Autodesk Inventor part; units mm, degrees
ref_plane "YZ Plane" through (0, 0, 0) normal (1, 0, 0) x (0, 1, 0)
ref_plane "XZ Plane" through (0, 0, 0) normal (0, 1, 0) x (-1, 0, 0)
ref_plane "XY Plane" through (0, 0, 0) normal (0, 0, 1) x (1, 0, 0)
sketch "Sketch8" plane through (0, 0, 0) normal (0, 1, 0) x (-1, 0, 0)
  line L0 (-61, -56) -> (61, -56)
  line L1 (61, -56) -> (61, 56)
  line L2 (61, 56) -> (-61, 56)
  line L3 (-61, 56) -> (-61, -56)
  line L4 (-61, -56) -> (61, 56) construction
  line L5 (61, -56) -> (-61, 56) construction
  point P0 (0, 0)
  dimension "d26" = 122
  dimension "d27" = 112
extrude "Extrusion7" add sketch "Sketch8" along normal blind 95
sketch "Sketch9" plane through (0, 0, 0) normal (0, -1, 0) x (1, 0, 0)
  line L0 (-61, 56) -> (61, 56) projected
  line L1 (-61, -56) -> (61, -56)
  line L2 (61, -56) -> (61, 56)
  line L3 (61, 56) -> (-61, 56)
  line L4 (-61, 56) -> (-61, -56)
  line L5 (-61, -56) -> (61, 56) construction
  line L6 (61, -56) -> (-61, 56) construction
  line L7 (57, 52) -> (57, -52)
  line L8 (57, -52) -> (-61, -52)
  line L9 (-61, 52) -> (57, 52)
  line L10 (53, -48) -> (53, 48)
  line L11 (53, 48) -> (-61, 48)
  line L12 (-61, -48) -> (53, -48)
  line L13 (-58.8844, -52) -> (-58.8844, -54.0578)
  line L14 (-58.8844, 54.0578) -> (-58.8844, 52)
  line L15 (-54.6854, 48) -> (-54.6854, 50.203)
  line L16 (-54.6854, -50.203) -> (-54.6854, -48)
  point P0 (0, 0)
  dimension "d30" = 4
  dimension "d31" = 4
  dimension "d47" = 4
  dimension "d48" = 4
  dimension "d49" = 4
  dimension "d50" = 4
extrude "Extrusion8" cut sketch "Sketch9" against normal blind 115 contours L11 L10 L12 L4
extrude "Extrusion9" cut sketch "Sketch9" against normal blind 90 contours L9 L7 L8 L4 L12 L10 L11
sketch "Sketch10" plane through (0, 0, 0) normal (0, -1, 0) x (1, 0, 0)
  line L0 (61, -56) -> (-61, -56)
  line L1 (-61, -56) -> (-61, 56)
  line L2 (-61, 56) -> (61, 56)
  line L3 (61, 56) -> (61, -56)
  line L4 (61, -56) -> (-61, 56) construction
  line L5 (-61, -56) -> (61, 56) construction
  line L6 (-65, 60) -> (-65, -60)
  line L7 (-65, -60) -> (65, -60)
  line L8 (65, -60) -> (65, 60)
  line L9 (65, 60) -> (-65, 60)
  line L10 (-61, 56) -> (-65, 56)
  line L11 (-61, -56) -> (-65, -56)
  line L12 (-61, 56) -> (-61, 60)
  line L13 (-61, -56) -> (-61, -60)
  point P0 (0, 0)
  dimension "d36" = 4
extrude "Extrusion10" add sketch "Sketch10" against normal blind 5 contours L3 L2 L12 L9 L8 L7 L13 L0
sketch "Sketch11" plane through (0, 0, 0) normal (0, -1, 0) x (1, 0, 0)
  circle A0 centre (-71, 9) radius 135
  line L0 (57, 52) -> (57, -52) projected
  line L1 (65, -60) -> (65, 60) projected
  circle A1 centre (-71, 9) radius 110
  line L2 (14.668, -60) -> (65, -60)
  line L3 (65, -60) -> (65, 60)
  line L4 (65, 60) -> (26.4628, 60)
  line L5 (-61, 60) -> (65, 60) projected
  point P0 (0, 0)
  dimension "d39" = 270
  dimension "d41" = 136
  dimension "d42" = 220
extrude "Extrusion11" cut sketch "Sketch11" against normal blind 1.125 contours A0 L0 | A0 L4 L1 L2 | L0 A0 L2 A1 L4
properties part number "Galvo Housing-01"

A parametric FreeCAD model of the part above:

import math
import FreeCAD as App
import Part
import Sketcher
Q = App.Units.Quantity


def add_polygon(sketch, points):
    """Adds a closed chain of lines whose ends are joined by coincident constraints."""
    first, n = sketch.GeometryCount, len(points)
    for a, b in zip(points, points[1:] + points[:1]):
        sketch.addGeometry(Part.LineSegment(App.Vector(*a, 0), App.Vector(*b, 0)), False)
    for i in range(n):
        sketch.addConstraint(Sketcher.Constraint("Coincident", first + i, 2, first + (i + 1) % n, 1))

doc = App.newDocument("Part")
body = doc.addObject("PartDesign::Body", "Body")

# Sketch on XZ plane
sketch1 = doc.addObject("Sketcher::SketchObject", "Sketch")
body.addObject(sketch1)
sketch1.AttachmentSupport = (doc.XZ_Plane, [""])
sketch1.MapMode = "FlatFace"
add_polygon(sketch1, [(61, 56), (61, -56), (-61, -56), (-61, 56)])  # lines 0-3
sketch1.addConstraint([
    Sketcher.Constraint("Vertical", 0),
    Sketcher.Constraint("Horizontal", 1),
    Sketcher.Constraint("Vertical", 2),
    Sketcher.Constraint("Horizontal", 3),
    Sketcher.Constraint("Symmetric", 0, 2, 2, 2, -1, 1),
    Sketcher.Constraint("DistanceX", 1, 2, 1, 1, Q("122 mm")),
    Sketcher.Constraint("DistanceY", 0, 2, 0, 1, Q("112 mm")),
])
pad1 = doc.addObject("PartDesign::Pad", "Pad")
body.addObject(pad1)
pad1.Profile = sketch1
pad1.Length = 95
pad1.Reversed = True

# Sketch on XZ plane
sketch2 = doc.addObject("Sketcher::SketchObject", "Sketch001")
body.addObject(sketch2)
sketch2.AttachmentSupport = (doc.XZ_Plane, [""])
sketch2.MapMode = "FlatFace"
add_polygon(sketch2, [(53, 48), (-61, 48), (-61, -48), (53, -48)])  # lines 0-3
sketch2.addConstraint([
    Sketcher.Constraint("Horizontal", 0),
    Sketcher.Constraint("Vertical", 1),
    Sketcher.Constraint("Horizontal", 2),
    Sketcher.Constraint("Vertical", 3),
    Sketcher.Constraint("DistanceX", 0, 2, 0, 1, Q("114 mm")),
    Sketcher.Constraint("DistanceY", 1, 2, 1, 1, Q("96 mm")),
    Sketcher.Constraint("DistanceX", 0, 2, -1, 1, Q("61 mm")),
    Sketcher.Constraint("DistanceY", -1, 1, 0, 2, Q("48 mm")),
])
pocket1 = doc.addObject("PartDesign::Pocket", "Pocket")
body.addObject(pocket1)
pocket1.Profile = sketch2
pocket1.Length = 115

# Sketch on XZ plane
sketch3 = doc.addObject("Sketcher::SketchObject", "Sketch002")
body.addObject(sketch3)
sketch3.AttachmentSupport = (doc.XZ_Plane, [""])
sketch3.MapMode = "FlatFace"
add_polygon(sketch3, [(57, 52), (-61, 52), (-61, 48), (53, 48), (53, -48), (-61, -48), (-61, -52), (57, -52)])  # lines 0-7
sketch3.addConstraint([
    Sketcher.Constraint("Horizontal", 0),
    Sketcher.Constraint("Vertical", 1),
    Sketcher.Constraint("Horizontal", 2),
    Sketcher.Constraint("Vertical", 3),
    Sketcher.Constraint("Horizontal", 4),
    Sketcher.Constraint("Vertical", 5),
    Sketcher.Constraint("Horizontal", 6),
    Sketcher.Constraint("Vertical", 7),
    Sketcher.Constraint("Symmetric", 1, 2, 4, 2, -1),
    Sketcher.Constraint("Equal", 1, 5),
    Sketcher.Constraint("DistanceY", 1, 2, 1, 1, Q("4 mm")),
    Sketcher.Constraint("DistanceX", 3, 2, 6, 2, Q("4 mm")),
    Sketcher.Constraint("DistanceX", 0, 2, 0, 1, Q("118 mm")),
    Sketcher.Constraint("DistanceY", 3, 2, 3, 1, Q("96 mm")),
    Sketcher.Constraint("DistanceX", 0, 2, -1, 1, Q("61 mm")),
])
pocket2 = doc.addObject("PartDesign::Pocket", "Pocket001")
body.addObject(pocket2)
pocket2.Profile = sketch3
pocket2.Length = 90

# Sketch on XZ plane
sketch4 = doc.addObject("Sketcher::SketchObject", "Sketch003")
body.addObject(sketch4)
sketch4.AttachmentSupport = (doc.XZ_Plane, [""])
sketch4.MapMode = "FlatFace"
add_polygon(sketch4, [(61, 56), (61, -56), (-61, -56), (-61, -60), (65, -60), (65, 60), (-61, 60), (-61, 56)])  # lines 0-7
sketch4.addConstraint([
    Sketcher.Constraint("Vertical", 0),
    Sketcher.Constraint("Horizontal", 1),
    Sketcher.Constraint("Vertical", 2),
    Sketcher.Constraint("Horizontal", 3),
    Sketcher.Constraint("Vertical", 4),
    Sketcher.Constraint("Horizontal", 5),
    Sketcher.Constraint("Vertical", 6),
    Sketcher.Constraint("Horizontal", 7),
    Sketcher.Constraint("Symmetric", 0, 2, 6, 2, -1, 1),
    Sketcher.Constraint("Symmetric", 2, 2, 5, 2, -1),
    Sketcher.Constraint("DistanceY", 2, 2, 2, 1, Q("4 mm")),
    Sketcher.Constraint("DistanceX", 0, 2, 3, 2, Q("4 mm")),
    Sketcher.Constraint("DistanceX", 1, 2, 1, 1, Q("122 mm")),
    Sketcher.Constraint("DistanceY", 0, 2, 0, 1, Q("112 mm")),
])
pad2 = doc.addObject("PartDesign::Pad", "Pad001")
body.addObject(pad2)
pad2.Profile = sketch4
pad2.Length = 5
pad2.Reversed = True

# Sketch on XZ plane
sketch5 = doc.addObject("Sketcher::SketchObject", "Sketch004")
body.addObject(sketch5)
sketch5.AttachmentSupport = (doc.XZ_Plane, [""])
sketch5.MapMode = "FlatFace"
sketch5.addGeometry([
    Part.LineSegment(App.Vector(65, 60, 0), App.Vector(26, 60, 0)),
    Part.ArcOfCircle(Part.Circle(App.Vector(-71, 9, 0), App.Vector(0, 0, 1), 110), math.radians(-39), math.radians(28)),
    Part.LineSegment(App.Vector(15, -60, 0), App.Vector(65, -60, 0)),
    Part.LineSegment(App.Vector(65, -60, 0), App.Vector(65, 60, 0)),
], False)
sketch5.addConstraint([
    Sketcher.Constraint("Coincident", 0, 2, 1, 2),
    Sketcher.Constraint("Coincident", 1, 1, 2, 1),
    Sketcher.Constraint("Coincident", 2, 2, 3, 1),
    Sketcher.Constraint("Coincident", 3, 2, 0, 1),
    Sketcher.Constraint("Horizontal", 0),
    Sketcher.Constraint("Horizontal", 2),
    Sketcher.Constraint("Vertical", 3),
    Sketcher.Constraint("Radius", 1, Q("110 mm")),
    Sketcher.Constraint("DistanceX", 1, 3, 2, 2, Q("136 mm")),
    Sketcher.Constraint("DistanceY", 3, 1, 3, 2, Q("120 mm")),
    Sketcher.Constraint("DistanceX", 1, 3, -1, 1, Q("71 mm")),
    Sketcher.Constraint("DistanceY", -1, 1, 1, 3, Q("9 mm")),
    Sketcher.Constraint("DistanceY", -1, 1, 0, 2, Q("60 mm")),
])
pocket3 = doc.addObject("PartDesign::Pocket", "Pocket002")
body.addObject(pocket3)
pocket3.Profile = sketch5
pocket3.Length = 1.125

doc.recompute()
